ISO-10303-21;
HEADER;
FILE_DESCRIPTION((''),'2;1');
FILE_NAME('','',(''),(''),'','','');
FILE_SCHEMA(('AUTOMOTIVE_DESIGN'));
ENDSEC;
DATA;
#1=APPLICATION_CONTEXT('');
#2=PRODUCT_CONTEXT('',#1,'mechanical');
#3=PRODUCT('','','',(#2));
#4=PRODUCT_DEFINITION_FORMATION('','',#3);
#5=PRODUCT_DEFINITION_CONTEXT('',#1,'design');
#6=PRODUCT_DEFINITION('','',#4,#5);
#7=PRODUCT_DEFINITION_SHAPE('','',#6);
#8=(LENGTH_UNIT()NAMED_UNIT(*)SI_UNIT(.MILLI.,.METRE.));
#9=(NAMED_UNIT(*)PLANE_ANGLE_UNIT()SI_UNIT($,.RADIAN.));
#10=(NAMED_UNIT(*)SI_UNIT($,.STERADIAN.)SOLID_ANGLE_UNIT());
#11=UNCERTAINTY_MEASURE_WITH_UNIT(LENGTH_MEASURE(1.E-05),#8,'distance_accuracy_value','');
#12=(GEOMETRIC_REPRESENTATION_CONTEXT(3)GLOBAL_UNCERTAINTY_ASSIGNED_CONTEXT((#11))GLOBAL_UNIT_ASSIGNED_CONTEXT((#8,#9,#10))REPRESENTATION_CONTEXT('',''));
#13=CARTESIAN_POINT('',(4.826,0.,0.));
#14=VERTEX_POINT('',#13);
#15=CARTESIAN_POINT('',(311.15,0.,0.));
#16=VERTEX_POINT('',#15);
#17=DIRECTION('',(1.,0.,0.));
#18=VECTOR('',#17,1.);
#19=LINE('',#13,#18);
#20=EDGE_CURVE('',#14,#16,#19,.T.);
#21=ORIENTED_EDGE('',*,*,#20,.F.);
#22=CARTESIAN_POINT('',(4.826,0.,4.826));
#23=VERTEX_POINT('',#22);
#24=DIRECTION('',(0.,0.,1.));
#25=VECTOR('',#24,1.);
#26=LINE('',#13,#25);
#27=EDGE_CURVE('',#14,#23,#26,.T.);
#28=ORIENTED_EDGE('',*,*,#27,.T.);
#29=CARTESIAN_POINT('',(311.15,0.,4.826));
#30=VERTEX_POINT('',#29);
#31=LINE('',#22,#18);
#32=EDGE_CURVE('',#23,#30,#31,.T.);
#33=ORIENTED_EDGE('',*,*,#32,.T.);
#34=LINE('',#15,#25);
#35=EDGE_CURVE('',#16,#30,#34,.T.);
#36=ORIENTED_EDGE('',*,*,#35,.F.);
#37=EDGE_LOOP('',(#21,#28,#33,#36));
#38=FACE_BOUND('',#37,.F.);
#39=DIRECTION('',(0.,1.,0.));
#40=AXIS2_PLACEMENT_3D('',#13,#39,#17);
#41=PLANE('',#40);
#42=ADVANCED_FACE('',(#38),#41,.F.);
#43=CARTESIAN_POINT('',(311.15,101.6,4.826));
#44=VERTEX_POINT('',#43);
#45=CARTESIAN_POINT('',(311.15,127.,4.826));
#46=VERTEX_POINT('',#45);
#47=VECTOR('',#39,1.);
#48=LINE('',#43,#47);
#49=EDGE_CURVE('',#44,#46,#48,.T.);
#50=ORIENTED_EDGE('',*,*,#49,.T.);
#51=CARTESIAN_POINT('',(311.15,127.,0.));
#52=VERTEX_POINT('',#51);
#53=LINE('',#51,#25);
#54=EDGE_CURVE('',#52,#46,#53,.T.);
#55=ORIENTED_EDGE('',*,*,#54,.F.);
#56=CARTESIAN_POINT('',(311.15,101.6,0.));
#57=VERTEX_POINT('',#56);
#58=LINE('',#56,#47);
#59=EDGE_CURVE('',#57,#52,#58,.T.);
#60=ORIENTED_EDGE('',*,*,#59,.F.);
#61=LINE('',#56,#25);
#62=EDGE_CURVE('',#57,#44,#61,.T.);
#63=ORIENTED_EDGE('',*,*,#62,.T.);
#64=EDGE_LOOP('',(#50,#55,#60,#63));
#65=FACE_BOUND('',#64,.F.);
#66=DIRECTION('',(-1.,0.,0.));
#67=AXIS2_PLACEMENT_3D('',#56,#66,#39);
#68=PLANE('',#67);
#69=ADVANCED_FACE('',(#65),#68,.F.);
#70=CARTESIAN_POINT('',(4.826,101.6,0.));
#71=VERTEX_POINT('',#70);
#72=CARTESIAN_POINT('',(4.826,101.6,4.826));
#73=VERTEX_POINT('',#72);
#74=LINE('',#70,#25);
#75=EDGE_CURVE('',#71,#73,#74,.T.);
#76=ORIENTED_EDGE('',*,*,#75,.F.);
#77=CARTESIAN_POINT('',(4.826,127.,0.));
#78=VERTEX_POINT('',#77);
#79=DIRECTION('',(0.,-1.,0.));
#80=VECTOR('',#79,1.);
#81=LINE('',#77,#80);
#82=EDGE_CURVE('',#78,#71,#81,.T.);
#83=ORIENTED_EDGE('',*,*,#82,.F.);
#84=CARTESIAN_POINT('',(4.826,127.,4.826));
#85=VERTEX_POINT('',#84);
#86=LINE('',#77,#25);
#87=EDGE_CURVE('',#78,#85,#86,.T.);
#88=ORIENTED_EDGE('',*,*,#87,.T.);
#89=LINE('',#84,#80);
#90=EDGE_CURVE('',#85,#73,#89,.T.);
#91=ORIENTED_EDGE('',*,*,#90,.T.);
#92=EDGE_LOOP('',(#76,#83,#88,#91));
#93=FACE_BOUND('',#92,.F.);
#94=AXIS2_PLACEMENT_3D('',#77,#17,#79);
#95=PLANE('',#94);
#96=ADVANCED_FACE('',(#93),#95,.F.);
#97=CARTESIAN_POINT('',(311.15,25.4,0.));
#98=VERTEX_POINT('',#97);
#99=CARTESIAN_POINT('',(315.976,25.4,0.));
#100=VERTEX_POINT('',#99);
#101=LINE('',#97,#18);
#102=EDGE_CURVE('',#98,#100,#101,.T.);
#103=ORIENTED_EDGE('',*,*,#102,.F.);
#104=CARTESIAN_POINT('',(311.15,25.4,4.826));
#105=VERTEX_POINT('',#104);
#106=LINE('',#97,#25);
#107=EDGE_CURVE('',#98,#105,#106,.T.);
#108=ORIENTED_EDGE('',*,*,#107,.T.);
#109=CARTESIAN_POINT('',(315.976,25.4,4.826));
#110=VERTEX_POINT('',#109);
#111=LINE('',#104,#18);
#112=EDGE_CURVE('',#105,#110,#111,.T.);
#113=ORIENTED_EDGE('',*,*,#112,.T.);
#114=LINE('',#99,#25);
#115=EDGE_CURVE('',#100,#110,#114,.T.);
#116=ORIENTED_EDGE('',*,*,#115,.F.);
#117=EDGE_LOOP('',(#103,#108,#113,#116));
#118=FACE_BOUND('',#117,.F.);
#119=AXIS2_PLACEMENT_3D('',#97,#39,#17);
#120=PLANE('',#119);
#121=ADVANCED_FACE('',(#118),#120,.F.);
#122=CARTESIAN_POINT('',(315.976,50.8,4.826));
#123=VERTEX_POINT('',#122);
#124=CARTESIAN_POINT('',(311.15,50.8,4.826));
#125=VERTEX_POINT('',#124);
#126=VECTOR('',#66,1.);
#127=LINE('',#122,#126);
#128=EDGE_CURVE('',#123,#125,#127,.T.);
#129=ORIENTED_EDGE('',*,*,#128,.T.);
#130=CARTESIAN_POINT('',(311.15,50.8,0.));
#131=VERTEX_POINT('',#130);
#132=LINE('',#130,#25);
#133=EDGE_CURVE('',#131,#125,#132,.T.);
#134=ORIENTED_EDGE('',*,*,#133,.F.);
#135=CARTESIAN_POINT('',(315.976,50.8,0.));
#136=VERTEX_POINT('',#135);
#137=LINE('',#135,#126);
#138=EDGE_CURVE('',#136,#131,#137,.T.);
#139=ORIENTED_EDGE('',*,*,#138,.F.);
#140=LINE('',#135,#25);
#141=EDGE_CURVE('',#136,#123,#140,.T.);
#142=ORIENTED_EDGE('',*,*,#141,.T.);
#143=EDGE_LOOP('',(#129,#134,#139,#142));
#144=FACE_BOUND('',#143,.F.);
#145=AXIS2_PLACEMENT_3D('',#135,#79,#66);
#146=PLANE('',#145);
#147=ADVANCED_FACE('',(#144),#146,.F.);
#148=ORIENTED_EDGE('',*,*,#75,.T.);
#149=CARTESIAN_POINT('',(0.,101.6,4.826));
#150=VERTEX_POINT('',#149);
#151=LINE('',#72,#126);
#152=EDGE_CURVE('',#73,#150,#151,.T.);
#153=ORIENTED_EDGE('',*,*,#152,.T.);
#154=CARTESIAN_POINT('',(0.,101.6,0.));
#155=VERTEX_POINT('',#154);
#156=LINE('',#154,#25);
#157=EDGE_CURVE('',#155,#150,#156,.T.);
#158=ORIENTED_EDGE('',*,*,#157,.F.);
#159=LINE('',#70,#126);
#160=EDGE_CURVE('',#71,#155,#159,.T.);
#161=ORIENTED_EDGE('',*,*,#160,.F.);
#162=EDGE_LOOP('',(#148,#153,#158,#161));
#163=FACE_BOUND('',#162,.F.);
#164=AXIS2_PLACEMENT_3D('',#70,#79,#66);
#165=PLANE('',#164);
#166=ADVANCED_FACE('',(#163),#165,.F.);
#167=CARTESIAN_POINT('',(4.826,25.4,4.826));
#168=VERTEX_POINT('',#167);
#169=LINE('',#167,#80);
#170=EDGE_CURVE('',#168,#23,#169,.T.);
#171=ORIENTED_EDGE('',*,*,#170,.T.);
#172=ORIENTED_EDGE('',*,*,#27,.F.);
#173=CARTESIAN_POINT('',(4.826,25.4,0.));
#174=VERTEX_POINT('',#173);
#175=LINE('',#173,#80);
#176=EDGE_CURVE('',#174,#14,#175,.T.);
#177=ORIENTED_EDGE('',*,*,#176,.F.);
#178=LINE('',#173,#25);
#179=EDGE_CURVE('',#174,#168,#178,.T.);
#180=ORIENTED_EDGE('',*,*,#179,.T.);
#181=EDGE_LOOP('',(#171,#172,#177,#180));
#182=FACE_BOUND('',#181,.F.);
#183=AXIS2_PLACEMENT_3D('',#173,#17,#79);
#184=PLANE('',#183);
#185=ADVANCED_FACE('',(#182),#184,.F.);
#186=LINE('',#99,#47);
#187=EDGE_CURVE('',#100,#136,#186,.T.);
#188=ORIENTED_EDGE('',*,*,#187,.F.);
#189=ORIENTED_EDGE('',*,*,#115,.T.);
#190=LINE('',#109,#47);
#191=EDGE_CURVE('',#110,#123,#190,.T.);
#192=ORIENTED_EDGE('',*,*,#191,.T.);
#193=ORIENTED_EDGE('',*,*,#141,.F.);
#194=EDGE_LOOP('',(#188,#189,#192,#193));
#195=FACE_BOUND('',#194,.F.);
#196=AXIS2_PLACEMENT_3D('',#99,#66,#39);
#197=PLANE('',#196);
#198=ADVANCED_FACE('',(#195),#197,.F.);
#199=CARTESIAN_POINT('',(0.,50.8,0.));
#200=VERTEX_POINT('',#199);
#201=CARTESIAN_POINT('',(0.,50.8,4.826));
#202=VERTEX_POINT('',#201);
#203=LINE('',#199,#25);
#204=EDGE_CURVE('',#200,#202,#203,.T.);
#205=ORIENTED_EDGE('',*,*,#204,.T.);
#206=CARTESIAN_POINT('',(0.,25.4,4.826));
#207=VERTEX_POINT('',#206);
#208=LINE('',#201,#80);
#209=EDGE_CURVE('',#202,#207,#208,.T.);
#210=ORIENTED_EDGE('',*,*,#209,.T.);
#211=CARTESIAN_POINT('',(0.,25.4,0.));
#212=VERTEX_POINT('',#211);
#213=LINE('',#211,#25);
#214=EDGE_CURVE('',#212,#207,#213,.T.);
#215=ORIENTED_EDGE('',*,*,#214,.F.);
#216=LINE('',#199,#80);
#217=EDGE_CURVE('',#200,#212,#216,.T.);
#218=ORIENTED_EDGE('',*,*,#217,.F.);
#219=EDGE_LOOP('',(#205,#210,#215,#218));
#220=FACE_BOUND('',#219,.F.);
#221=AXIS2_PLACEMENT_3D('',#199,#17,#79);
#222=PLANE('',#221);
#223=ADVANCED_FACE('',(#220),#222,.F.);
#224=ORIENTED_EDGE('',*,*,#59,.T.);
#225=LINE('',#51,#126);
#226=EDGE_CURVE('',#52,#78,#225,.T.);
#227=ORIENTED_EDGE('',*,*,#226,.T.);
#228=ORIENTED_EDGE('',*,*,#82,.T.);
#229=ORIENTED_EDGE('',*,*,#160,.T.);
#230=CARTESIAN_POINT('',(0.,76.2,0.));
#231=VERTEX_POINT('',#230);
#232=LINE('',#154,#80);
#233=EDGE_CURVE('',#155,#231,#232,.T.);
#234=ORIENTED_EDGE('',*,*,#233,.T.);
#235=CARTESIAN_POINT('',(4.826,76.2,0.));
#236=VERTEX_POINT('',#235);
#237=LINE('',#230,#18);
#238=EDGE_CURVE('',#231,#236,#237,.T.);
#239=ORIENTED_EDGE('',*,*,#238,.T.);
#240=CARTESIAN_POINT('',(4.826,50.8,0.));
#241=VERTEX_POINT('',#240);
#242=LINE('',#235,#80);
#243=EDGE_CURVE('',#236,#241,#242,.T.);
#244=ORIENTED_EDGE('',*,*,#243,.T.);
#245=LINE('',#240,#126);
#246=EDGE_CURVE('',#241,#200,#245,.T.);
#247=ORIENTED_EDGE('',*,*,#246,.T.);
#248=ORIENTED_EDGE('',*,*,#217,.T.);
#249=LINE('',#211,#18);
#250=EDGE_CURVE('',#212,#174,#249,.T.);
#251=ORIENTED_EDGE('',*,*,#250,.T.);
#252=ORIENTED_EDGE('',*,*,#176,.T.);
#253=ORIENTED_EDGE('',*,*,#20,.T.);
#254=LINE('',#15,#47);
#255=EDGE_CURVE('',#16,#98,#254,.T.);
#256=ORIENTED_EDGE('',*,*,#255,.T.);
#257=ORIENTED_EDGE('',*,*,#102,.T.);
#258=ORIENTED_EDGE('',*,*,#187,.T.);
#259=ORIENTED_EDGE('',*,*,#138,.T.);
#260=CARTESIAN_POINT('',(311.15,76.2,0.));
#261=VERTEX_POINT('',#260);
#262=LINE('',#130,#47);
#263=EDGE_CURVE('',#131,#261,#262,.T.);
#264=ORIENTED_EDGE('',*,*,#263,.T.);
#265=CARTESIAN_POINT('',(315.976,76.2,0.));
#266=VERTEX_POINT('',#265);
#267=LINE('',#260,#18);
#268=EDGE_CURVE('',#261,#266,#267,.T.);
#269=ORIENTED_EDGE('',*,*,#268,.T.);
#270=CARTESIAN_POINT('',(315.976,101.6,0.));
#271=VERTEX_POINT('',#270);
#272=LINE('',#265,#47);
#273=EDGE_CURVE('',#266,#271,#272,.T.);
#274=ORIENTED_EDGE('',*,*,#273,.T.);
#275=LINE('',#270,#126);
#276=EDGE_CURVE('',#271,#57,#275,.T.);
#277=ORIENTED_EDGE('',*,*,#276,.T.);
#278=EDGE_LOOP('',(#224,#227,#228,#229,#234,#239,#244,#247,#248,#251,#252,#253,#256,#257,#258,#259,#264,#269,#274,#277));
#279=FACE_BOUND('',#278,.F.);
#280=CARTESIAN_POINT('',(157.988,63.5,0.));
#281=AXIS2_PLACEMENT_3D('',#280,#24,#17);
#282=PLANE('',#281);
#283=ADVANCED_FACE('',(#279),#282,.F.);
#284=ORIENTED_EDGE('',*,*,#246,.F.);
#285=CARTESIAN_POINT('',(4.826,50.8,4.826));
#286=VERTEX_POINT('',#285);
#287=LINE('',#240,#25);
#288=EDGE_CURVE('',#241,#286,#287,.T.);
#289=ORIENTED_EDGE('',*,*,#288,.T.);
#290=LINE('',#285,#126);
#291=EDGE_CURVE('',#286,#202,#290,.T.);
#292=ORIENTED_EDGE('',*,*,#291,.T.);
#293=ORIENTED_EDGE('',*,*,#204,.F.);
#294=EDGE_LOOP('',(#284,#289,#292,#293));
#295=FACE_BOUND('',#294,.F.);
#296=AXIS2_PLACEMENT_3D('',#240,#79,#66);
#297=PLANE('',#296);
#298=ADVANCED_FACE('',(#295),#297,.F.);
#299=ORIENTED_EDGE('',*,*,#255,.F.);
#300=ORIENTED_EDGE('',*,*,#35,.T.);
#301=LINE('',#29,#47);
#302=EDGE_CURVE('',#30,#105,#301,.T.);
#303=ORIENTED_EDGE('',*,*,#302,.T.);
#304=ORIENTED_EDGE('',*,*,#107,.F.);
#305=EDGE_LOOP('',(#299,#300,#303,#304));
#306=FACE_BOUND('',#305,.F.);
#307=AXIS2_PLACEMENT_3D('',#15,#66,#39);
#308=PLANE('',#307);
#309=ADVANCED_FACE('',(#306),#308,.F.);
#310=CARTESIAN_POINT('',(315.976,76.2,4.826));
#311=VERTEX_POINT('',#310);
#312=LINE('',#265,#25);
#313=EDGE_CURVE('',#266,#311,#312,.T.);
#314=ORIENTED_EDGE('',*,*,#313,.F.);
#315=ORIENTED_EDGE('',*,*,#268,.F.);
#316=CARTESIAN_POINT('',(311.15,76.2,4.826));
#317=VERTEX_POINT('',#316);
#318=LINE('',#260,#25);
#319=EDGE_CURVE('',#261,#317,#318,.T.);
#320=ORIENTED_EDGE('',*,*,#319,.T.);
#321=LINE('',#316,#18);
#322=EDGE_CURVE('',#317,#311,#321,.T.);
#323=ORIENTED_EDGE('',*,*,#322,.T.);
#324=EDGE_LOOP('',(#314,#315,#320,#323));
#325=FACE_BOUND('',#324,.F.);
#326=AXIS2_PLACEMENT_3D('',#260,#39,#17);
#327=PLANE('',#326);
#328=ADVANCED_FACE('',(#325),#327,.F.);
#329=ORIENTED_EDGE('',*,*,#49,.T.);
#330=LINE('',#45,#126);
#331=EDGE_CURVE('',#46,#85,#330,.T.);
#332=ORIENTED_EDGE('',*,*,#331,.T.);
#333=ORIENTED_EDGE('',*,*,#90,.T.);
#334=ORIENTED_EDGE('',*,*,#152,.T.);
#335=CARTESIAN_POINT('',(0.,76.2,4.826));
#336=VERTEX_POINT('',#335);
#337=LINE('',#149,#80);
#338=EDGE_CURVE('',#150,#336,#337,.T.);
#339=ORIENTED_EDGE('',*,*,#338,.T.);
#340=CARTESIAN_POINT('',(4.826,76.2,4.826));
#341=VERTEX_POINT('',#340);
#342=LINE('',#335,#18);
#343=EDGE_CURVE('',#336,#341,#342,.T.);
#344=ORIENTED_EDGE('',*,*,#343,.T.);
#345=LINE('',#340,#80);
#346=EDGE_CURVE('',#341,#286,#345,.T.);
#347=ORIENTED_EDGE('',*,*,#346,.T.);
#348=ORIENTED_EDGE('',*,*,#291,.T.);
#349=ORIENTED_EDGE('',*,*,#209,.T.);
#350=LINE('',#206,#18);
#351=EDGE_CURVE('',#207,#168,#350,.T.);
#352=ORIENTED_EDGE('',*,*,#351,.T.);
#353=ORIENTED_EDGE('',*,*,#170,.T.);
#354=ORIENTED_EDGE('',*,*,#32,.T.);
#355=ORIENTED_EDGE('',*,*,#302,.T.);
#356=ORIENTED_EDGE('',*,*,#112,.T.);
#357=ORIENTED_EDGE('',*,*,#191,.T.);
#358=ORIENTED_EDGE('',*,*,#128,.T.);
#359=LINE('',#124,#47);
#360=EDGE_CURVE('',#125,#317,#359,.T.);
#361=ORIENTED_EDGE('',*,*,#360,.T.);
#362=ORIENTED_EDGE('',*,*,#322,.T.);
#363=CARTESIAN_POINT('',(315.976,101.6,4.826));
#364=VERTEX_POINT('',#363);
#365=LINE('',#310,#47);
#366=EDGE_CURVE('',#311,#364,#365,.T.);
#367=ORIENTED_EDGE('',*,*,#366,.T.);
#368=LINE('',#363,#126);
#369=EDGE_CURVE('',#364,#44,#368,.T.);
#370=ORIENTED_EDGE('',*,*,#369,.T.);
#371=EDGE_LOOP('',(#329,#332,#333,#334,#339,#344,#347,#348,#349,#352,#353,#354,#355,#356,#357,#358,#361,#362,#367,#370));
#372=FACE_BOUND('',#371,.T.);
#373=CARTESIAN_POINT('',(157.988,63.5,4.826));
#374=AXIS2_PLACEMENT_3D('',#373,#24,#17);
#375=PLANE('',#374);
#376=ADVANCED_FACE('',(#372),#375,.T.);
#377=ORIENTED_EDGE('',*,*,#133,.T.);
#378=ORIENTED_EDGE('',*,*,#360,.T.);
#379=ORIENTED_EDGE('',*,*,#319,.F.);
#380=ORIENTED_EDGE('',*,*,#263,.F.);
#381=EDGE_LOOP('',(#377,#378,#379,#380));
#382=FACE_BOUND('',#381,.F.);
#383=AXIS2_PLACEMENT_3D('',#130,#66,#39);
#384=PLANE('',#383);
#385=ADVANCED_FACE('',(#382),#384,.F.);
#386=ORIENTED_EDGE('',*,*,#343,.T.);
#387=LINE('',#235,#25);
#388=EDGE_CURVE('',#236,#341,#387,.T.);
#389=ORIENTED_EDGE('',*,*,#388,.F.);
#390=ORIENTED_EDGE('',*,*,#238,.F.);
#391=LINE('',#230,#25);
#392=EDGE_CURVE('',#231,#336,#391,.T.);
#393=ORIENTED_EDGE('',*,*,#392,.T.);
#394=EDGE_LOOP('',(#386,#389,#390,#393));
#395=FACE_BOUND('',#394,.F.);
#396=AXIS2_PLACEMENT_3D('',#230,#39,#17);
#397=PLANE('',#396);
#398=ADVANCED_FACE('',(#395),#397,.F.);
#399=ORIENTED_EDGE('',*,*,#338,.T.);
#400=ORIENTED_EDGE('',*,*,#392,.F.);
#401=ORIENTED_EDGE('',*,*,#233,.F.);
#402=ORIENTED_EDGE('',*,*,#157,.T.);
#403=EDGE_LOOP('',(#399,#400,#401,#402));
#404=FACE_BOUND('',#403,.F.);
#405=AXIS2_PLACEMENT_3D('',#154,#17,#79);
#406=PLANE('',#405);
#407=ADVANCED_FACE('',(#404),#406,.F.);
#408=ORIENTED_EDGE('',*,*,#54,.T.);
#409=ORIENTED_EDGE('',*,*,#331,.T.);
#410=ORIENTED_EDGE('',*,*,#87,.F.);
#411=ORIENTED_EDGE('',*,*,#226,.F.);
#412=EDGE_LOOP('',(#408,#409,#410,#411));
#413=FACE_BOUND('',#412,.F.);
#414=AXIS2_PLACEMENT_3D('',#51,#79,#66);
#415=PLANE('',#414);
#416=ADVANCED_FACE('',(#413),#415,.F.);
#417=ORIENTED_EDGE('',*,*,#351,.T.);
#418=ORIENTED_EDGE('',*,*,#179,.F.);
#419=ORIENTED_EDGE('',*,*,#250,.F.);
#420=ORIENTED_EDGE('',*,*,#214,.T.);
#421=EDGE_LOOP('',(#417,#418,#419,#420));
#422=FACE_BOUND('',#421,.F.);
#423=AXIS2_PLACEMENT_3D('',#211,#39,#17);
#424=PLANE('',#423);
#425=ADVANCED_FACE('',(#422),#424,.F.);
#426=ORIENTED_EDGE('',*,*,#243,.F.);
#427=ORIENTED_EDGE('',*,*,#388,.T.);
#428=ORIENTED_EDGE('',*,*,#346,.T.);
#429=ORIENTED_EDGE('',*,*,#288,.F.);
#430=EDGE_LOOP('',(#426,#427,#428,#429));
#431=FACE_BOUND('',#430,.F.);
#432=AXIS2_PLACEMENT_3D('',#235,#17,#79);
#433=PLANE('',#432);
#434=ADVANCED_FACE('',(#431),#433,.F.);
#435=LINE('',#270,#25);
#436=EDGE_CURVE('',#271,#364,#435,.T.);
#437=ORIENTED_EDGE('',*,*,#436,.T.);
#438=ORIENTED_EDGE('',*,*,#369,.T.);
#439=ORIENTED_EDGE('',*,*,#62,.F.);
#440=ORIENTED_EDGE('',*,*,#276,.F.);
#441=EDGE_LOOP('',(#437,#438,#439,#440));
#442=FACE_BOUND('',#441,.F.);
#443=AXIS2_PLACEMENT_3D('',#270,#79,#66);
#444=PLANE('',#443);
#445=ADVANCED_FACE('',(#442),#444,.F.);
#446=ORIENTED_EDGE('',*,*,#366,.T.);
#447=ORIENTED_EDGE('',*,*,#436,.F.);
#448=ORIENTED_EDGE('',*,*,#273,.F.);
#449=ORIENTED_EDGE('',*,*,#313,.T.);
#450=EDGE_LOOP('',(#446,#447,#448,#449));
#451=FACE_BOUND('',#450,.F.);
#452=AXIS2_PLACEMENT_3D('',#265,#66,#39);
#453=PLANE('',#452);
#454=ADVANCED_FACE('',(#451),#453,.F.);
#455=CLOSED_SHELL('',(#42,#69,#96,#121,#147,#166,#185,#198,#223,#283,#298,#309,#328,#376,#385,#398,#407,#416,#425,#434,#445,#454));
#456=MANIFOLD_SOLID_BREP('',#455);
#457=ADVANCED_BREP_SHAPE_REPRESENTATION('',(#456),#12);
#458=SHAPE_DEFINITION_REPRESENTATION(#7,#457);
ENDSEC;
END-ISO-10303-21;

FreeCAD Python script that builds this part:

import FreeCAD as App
import Part
import Sketcher

V = App.Vector
Q = App.Units.Quantity


def add_polygon(sketch, points):
    """Adds a closed chain of lines whose ends are joined by coincident constraints."""
    first, n = sketch.GeometryCount, len(points)
    for a, b in zip(points, points[1:] + points[:1]):
        sketch.addGeometry(Part.LineSegment(App.Vector(*a, 0), App.Vector(*b, 0)), False)
    for i in range(n):
        sketch.addConstraint(Sketcher.Constraint("Coincident", first + i, 2, first + (i + 1) % n, 1))

doc = App.newDocument("Part")
body = doc.addObject("PartDesign::Body", "Body")

sketch1 = doc.addObject("Sketcher::SketchObject", "Sketch")
body.addObject(sketch1)
sketch1.AttachmentSupport = (doc.XY_Plane, [""])
sketch1.MapMode = "FlatFace"
add_polygon(sketch1, [(4.826, 76.2), (4.826, 50.8), (0, 50.8), (0, 25.4), (4.826, 25.4), (4.826, 0), (311.15, 0), (311.15, 25.4), (315.976, 25.4), (315.976, 50.8), (311.15, 50.8), (311.15, 76.2), (315.976, 76.2), (315.976, 101.6), (311.15, 101.6), (311.15, 127), (4.826, 127), (4.826, 101.6), (0, 101.6), (0, 76.2)])
sketch1.addConstraint(Sketcher.Constraint("Vertical", 0))
sketch1.addConstraint(Sketcher.Constraint("Horizontal", 1))
sketch1.addConstraint(Sketcher.Constraint("Vertical", 2))
sketch1.addConstraint(Sketcher.Constraint("Horizontal", 3))
sketch1.addConstraint(Sketcher.Constraint("Vertical", 4))
sketch1.addConstraint(Sketcher.Constraint("Horizontal", 5))
sketch1.addConstraint(Sketcher.Constraint("Vertical", 6))
sketch1.addConstraint(Sketcher.Constraint("Horizontal", 7))
sketch1.addConstraint(Sketcher.Constraint("Vertical", 8))
sketch1.addConstraint(Sketcher.Constraint("Horizontal", 9))
sketch1.addConstraint(Sketcher.Constraint("Vertical", 10))
sketch1.addConstraint(Sketcher.Constraint("Horizontal", 11))
sketch1.addConstraint(Sketcher.Constraint("Vertical", 12))
sketch1.addConstraint(Sketcher.Constraint("Horizontal", 13))
sketch1.addConstraint(Sketcher.Constraint("Vertical", 14))
sketch1.addConstraint(Sketcher.Constraint("Horizontal", 15))
sketch1.addConstraint(Sketcher.Constraint("Vertical", 16))
sketch1.addConstraint(Sketcher.Constraint("Horizontal", 17))
sketch1.addConstraint(Sketcher.Constraint("Vertical", 18))
sketch1.addConstraint(Sketcher.Constraint("Horizontal", 19))
sketch1.addConstraint(Sketcher.Constraint("PointOnObject", 1, 2, -2))
sketch1.addConstraint(Sketcher.Constraint("PointOnObject", 4, 2, -1))
sketch1.addConstraint(Sketcher.Constraint("PointOnObject", 17, 2, -2))
sketch1.addConstraint(Sketcher.Constraint("Horizontal", 3, 2, 6, 2))
sketch1.addConstraint(Sketcher.Constraint("Horizontal", 1, 2, 8, 2))
sketch1.addConstraint(Sketcher.Constraint("Horizontal", 13, 2, 16, 2))
sketch1.addConstraint(Sketcher.Constraint("Horizontal", 11, 2, 18, 2))
sketch1.addConstraint(Sketcher.Constraint("Vertical", 0, 2, 3, 2))
sketch1.addConstraint(Sketcher.Constraint("Vertical", 6, 2, 9, 2))
sketch1.addConstraint(Sketcher.Constraint("Vertical", 8, 2, 11, 2))
sketch1.addConstraint(Sketcher.Constraint("Vertical", 10, 2, 13, 2))
sketch1.addConstraint(Sketcher.Constraint("Vertical", 4, 2, 15, 2))
sketch1.addConstraint(Sketcher.Constraint("Equal", 3, 7))
sketch1.addConstraint(Sketcher.Constraint("Equal", 0, 2))
sketch1.addConstraint(Sketcher.Constraint("Equal", 2, 4))
sketch1.addConstraint(Sketcher.Constraint("Equal", 10, 12))
sketch1.addConstraint(Sketcher.Constraint("Equal", 12, 14))
sketch1.addConstraint(Sketcher.Constraint("DistanceY", 0, 2, 0, 1, Q("1 in")))
sketch1.addConstraint(Sketcher.Constraint("DistanceX", 1, 2, 1, 1, Q("0.19 in")))
sketch1.addConstraint(Sketcher.Constraint("DistanceX", 5, 1, 5, 2, Q("12.06 in")))
pad1 = doc.addObject("PartDesign::Pad", "Pad")
body.addObject(pad1)
pad1.Profile = sketch1
pad1.Length = Q("0.19 in")

doc.recompute()
